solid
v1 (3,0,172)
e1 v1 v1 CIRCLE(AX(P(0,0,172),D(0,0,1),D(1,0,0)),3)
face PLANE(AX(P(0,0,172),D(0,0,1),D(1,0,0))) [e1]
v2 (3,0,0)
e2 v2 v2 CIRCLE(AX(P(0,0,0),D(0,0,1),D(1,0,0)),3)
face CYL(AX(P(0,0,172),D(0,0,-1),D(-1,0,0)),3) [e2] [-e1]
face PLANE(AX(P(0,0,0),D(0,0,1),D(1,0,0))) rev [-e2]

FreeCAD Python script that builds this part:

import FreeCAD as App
import Part
import Sketcher
from FreeCAD import Vector

doc = App.newDocument("Part")
params = doc.addObject("Spreadsheet::Sheet", "Params")
for row, (alias, value) in enumerate([
    ("sketch1_diameter", "6 mm"),
    ("pad1_length", "172 mm"),
], start=1):
    params.set(f"A{row}", alias)
    params.set(f"B{row}", "=" + value)
    params.setAlias(f"B{row}", alias)

body = doc.addObject("PartDesign::Body", "Body")

# Sketch on XY plane
sketch1 = doc.addObject("Sketcher::SketchObject", "Sketch")
body.addObject(sketch1)
sketch1.AttachmentSupport = (doc.XY_Plane, [""])
sketch1.MapMode = "FlatFace"
sketch1.addGeometry(Part.Circle(Vector(0, 0, 0), Vector(0, 0, 1), 3), False)
sketch1.addConstraint([
    Sketcher.Constraint("Coincident", 0, 3, -1, 1),
    Sketcher.Constraint("Diameter", 0, 6.0),
])
sketch1.setExpression("Constraints[1]", "Params.sketch1_diameter")
pad1 = doc.addObject("PartDesign::Pad", "Pad")
body.addObject(pad1)
pad1.Profile = sketch1
pad1.setExpression("Length", "Params.pad1_length")

doc.recompute()
